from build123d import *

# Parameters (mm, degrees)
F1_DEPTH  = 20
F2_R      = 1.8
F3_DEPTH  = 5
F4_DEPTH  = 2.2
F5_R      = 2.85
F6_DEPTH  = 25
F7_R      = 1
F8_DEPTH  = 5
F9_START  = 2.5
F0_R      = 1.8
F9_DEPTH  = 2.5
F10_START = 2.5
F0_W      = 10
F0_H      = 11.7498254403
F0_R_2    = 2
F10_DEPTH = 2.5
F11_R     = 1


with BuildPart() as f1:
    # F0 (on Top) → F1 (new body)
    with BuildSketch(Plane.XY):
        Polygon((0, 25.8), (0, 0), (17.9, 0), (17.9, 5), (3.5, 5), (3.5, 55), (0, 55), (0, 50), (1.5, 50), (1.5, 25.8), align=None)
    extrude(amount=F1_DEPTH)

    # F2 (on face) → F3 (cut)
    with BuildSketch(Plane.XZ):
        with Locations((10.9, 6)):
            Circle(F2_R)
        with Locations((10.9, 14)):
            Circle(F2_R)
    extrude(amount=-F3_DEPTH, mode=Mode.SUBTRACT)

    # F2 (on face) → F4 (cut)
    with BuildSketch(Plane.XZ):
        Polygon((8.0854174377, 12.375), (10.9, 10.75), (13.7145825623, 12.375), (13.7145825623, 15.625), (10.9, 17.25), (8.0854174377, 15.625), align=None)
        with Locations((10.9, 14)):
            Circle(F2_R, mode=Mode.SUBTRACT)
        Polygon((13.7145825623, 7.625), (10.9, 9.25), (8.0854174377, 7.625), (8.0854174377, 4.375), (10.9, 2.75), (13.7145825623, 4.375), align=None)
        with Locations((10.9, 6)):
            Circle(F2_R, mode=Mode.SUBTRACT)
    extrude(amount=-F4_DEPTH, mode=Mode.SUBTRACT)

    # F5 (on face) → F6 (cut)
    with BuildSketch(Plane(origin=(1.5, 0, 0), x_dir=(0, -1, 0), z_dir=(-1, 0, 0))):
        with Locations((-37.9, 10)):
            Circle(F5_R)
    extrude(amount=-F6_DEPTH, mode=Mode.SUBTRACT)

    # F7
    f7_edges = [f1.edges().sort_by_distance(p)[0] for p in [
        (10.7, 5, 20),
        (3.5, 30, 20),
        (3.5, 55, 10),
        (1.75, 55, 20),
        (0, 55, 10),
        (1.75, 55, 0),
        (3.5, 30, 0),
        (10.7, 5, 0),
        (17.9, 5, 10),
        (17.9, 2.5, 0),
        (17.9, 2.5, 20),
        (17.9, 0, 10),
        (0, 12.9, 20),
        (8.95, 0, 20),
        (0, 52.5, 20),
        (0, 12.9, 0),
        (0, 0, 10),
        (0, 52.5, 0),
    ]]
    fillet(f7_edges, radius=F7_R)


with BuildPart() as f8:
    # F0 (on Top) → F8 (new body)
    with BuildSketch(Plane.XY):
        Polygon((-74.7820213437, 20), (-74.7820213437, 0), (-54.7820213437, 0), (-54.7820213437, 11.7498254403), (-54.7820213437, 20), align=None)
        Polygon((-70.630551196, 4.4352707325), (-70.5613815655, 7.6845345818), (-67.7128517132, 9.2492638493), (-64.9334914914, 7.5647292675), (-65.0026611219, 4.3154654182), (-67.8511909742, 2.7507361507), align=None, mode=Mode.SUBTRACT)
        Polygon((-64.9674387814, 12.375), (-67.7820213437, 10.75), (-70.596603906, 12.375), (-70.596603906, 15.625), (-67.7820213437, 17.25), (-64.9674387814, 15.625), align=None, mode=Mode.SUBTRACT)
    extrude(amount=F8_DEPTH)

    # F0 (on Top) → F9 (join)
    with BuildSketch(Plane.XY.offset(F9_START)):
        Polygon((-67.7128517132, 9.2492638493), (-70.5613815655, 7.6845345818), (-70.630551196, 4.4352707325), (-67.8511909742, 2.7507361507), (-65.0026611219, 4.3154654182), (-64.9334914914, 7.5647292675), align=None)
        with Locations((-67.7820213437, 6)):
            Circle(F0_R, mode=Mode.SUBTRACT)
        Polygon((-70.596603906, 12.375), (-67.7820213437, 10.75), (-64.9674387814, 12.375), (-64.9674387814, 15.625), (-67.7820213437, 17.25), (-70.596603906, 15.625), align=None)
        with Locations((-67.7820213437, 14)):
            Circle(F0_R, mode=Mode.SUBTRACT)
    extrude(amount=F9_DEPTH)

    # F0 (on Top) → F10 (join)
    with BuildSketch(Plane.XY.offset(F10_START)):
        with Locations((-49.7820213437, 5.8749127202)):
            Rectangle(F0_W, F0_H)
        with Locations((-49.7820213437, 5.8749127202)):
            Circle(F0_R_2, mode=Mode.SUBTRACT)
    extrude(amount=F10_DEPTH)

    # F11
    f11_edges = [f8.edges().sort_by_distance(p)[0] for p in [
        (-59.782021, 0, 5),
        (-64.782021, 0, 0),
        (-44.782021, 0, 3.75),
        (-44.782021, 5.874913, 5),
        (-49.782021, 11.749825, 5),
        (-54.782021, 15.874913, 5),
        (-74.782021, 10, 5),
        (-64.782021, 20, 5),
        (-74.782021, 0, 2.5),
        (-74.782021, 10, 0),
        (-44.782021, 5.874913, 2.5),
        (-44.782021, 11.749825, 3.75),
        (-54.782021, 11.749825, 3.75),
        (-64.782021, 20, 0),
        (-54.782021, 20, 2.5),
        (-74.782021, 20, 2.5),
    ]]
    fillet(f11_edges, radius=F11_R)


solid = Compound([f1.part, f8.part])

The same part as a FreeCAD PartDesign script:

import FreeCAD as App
import Part
import Sketcher
Q = App.Units.Quantity


def edges_at(feature, points):
    """Names of the edges that pass closest to the given points."""
    edges = feature.Shape.Edges
    near = lambda p: min(range(len(edges)), key=lambda i: edges[i].distToShape(Part.Vertex(*p))[0])
    return sorted({f"Edge{near(p) + 1}" for p in points})

doc = App.newDocument("Part")
body = doc.addObject("PartDesign::Body", "Body")

sketch1 = doc.addObject("Sketcher::SketchObject", "Sketch")
body.addObject(sketch1)
sketch1.AttachmentSupport = (doc.XY_Plane, [""])
sketch1.MapMode = "FlatFace"
sketch1.addGeometry([
    Part.LineSegment(App.Vector(0, 25.8, 0), App.Vector(0, 0, 0)),
    Part.LineSegment(App.Vector(0, 0, 0), App.Vector(17.9, 0, 0)),
    Part.LineSegment(App.Vector(17.9, 0, 0), App.Vector(17.9, 5, 0)),
    Part.LineSegment(App.Vector(17.9, 5, 0), App.Vector(3.5, 5, 0)),
    Part.LineSegment(App.Vector(3.5, 5, 0), App.Vector(3.5, 55, 0)),
    Part.LineSegment(App.Vector(3.5, 55, 0), App.Vector(0, 55, 0)),
    Part.LineSegment(App.Vector(0, 55, 0), App.Vector(0, 50, 0)),
    Part.LineSegment(App.Vector(0, 50, 0), App.Vector(1.5, 50, 0)),
    Part.LineSegment(App.Vector(1.5, 50, 0), App.Vector(1.5, 25.8, 0)),
    Part.LineSegment(App.Vector(1.5, 25.8, 0), App.Vector(0, 25.8, 0)),
], False)
sketch1.addConstraint([
    Sketcher.Constraint("Coincident", 0, 2, 1, 1),
    Sketcher.Constraint("Coincident", 1, 2, 2, 1),
    Sketcher.Constraint("Coincident", 2, 2, 3, 1),
    Sketcher.Constraint("Coincident", 3, 2, 4, 1),
    Sketcher.Constraint("Coincident", 4, 2, 5, 1),
    Sketcher.Constraint("Coincident", 5, 2, 6, 1),
    Sketcher.Constraint("Coincident", 6, 2, 7, 1),
    Sketcher.Constraint("Coincident", 7, 2, 8, 1),
    Sketcher.Constraint("Coincident", 8, 2, 9, 1),
    Sketcher.Constraint("Coincident", 9, 2, 0, 1),
    Sketcher.Constraint("Vertical", 0),
    Sketcher.Constraint("Horizontal", 1),
    Sketcher.Constraint("Vertical", 2),
    Sketcher.Constraint("Horizontal", 3),
    Sketcher.Constraint("Vertical", 4),
    Sketcher.Constraint("Horizontal", 5),
    Sketcher.Constraint("Vertical", 6),
    Sketcher.Constraint("Horizontal", 7),
    Sketcher.Constraint("Vertical", 8),
    Sketcher.Constraint("Horizontal", 9),
    Sketcher.Constraint("Coincident", 0, 2, -1, 1),
    Sketcher.Constraint("PointOnObject", 5, 2, -2),
    Sketcher.Constraint("Equal", 2, 6),
    Sketcher.Constraint("DistanceY", 2, 1, 2, 2, Q("5 mm")),
    Sketcher.Constraint("DistanceY", 4, 1, 4, 2, Q("50 mm")),
    Sketcher.Constraint("DistanceX", 1, 1, 1, 2, Q("17.9 mm")),
    Sketcher.Constraint("DistanceX", 3, 2, 3, 1, Q("14.4 mm")),
    Sketcher.Constraint("DistanceX", 7, 1, 7, 2, Q("1.5 mm")),
    Sketcher.Constraint("DistanceY", 0, 2, 0, 1, Q("25.8 mm")),
])
pad1 = doc.addObject("PartDesign::Pad", "Pad")
body.addObject(pad1)
pad1.Profile = sketch1
pad1.Length = 20

sketch2 = doc.addObject("Sketcher::SketchObject", "Sketch001")
body.addObject(sketch2)
sketch2.AttachmentSupport = (doc.XZ_Plane, [""])
sketch2.MapMode = "FlatFace"
sketch2.addGeometry([
    Part.Circle(App.Vector(10.9, 6, 0), App.Vector(0, 0, 1), 1.8),
    Part.Circle(App.Vector(10.9, 14, 0), App.Vector(0, 0, 1), 1.8),
], False)
sketch2.addConstraint([
    Sketcher.Constraint("Equal", 0, 1),
    Sketcher.Constraint("Vertical", 0, 3, 1, 3),
    Sketcher.Constraint("Diameter", 0, Q("3.6 mm")),
    Sketcher.Constraint("DistanceY", -1, 1, 0, 3, Q("6 mm")),
    Sketcher.Constraint("DistanceY", -1, 1, 1, 3, Q("14 mm")),
    Sketcher.Constraint("DistanceX", -1, 1, 0, 3, Q("10.9 mm")),
])
pocket1 = doc.addObject("PartDesign::Pocket", "Pocket")
body.addObject(pocket1)
pocket1.Profile = sketch2
pocket1.Length = 5

sketch3 = doc.addObject("Sketcher::SketchObject", "Sketch002")
body.addObject(sketch3)
sketch3.AttachmentSupport = (doc.XZ_Plane, [""])
sketch3.MapMode = "FlatFace"
sketch3.addGeometry([
    Part.LineSegment(App.Vector(8.1, 12.4, 0), App.Vector(10.9, 10.8, 0)),
    Part.LineSegment(App.Vector(10.9, 10.8, 0), App.Vector(13.7, 12.4, 0)),
    Part.LineSegment(App.Vector(13.7, 12.4, 0), App.Vector(13.7, 15.6, 0)),
    Part.LineSegment(App.Vector(13.7, 15.6, 0), App.Vector(10.9, 17.2, 0)),
    Part.LineSegment(App.Vector(10.9, 17.2, 0), App.Vector(8.1, 15.6, 0)),
    Part.LineSegment(App.Vector(8.1, 15.6, 0), App.Vector(8.1, 12.4, 0)),
    Part.Circle(App.Vector(10.9, 14, 0), App.Vector(0, 0, 1), 1.8),
    Part.LineSegment(App.Vector(13.7, 7.6, 0), App.Vector(10.9, 9.2, 0)),
    Part.LineSegment(App.Vector(10.9, 9.2, 0), App.Vector(8.1, 7.6, 0)),
    Part.LineSegment(App.Vector(8.1, 7.6, 0), App.Vector(8.1, 4.4, 0)),
    Part.LineSegment(App.Vector(8.1, 4.4, 0), App.Vector(10.9, 2.8, 0)),
    Part.LineSegment(App.Vector(10.9, 2.8, 0), App.Vector(13.7, 4.4, 0)),
    Part.LineSegment(App.Vector(13.7, 4.4, 0), App.Vector(13.7, 7.6, 0)),
    Part.Circle(App.Vector(10.9, 6, 0), App.Vector(0, 0, 1), 1.8),
], False)
sketch3.addConstraint([
    Sketcher.Constraint("Coincident", 0, 2, 1, 1),
    Sketcher.Constraint("Coincident", 1, 2, 2, 1),
    Sketcher.Constraint("Coincident", 2, 2, 3, 1),
    Sketcher.Constraint("Coincident", 3, 2, 4, 1),
    Sketcher.Constraint("Coincident", 4, 2, 5, 1),
    Sketcher.Constraint("Coincident", 5, 2, 0, 1),
    Sketcher.Constraint("Coincident", 7, 2, 8, 1),
    Sketcher.Constraint("Coincident", 8, 2, 9, 1),
    Sketcher.Constraint("Coincident", 9, 2, 10, 1),
    Sketcher.Constraint("Coincident", 10, 2, 11, 1),
    Sketcher.Constraint("Coincident", 11, 2, 12, 1),
    Sketcher.Constraint("Coincident", 12, 2, 7, 1),
    Sketcher.Constraint("Vertical", 2),
    Sketcher.Constraint("Vertical", 5),
    Sketcher.Constraint("Vertical", 9),
    Sketcher.Constraint("Vertical", 12),
    Sketcher.Constraint("Equal", 6, 13),
    Sketcher.Constraint("Parallel", 0, 3),
    Sketcher.Constraint("Parallel", 1, 4),
    Sketcher.Constraint("Parallel", 3, 7),
    Sketcher.Constraint("Parallel", 4, 8),
    Sketcher.Constraint("Parallel", 7, 10),
    Sketcher.Constraint("Parallel", 8, 11),
    Sketcher.Constraint("Horizontal", 2, 2, 4, 2),
    Sketcher.Constraint("Horizontal", 1, 2, 5, 2),
    Sketcher.Constraint("Horizontal", 9, 2, 11, 2),
    Sketcher.Constraint("Horizontal", 8, 2, 12, 2),
    Sketcher.Constraint("Vertical", 6, 3, 13, 3),
    Sketcher.Constraint("Vertical", 13, 3, 0, 2),
    Sketcher.Constraint("Vertical", 0, 2, 3, 2),
    Sketcher.Constraint("Vertical", 3, 2, 7, 2),
    Sketcher.Constraint("Vertical", 5, 2, 8, 2),
    Sketcher.Constraint("Equal", 5, 9),
    Sketcher.Constraint("Diameter", 6, Q("3.6 mm")),
    Sketcher.Constraint("Angle", 0, Q("-30 deg")),
    Sketcher.Constraint("DistanceY", -1, 1, 6, 3, Q("14 mm")),
    Sketcher.Constraint("DistanceY", -1, 1, 13, 3, Q("6 mm")),
    Sketcher.Constraint("DistanceY", 9, 2, 5, 2, Q("8 mm")),
    Sketcher.Constraint("DistanceY", 2, 1, 2, 2, Q("3.25 mm")),
    Sketcher.Constraint("DistanceX", -1, 1, 6, 3, Q("10.9 mm")),
    Sketcher.Constraint("DistanceY", 0, 2, 3, 2, Q("6.5 mm")),
    Sketcher.Constraint("DistanceY", -1, 1, 0, 2, Q("10.75 mm")),
])
pocket2 = doc.addObject("PartDesign::Pocket", "Pocket001")
body.addObject(pocket2)
pocket2.Profile = sketch3
pocket2.Length = 2.2

sketch4 = doc.addObject("Sketcher::SketchObject", "Sketch003")
body.addObject(sketch4)
sketch4.AttachmentSupport = (doc.YZ_Plane, [""])
sketch4.MapMode = "FlatFace"
sketch4.AttachmentOffset = App.Placement(App.Vector(0, 0, 1.5), App.Rotation())
sketch4.addGeometry(Part.Circle(App.Vector(37.9, 10, 0), App.Vector(0, 0, 1), 2.9), False)
sketch4.addConstraint([
    Sketcher.Constraint("Diameter", 0, Q("5.7 mm")),
    Sketcher.Constraint("DistanceY", -1, 1, 0, 3, Q("10 mm")),
    Sketcher.Constraint("DistanceX", -1, 1, 0, 3, Q("37.9 mm")),
])
pocket3 = doc.addObject("PartDesign::Pocket", "Pocket002")
body.addObject(pocket3)
pocket3.Profile = sketch4
pocket3.Length = 25
pocket3.Reversed = True
doc.recompute()

fillet = doc.addObject("PartDesign::Fillet", "Fillet")
body.addObject(fillet)
fillet.Base = (pocket3, edges_at(pocket3, [
    (10.7, 5, 20),
    (3.5, 30, 20),
    (3.5, 55, 10),
    (1.75, 55, 20),
    (0, 55, 10),
    (1.75, 55, 0),
    (3.5, 30, 0),
    (10.7, 5, 0),
    (17.9, 5, 10),
    (17.9, 2.5, 0),
    (17.9, 2.5, 20),
    (17.9, 0, 10),
    (0, 12.9, 20),
    (8.95, 0, 20),
    (0, 52.5, 20),
    (0, 12.9, 0),
    (0, 0, 10),
    (0, 52.5, 0),
]))
fillet.Radius = 1
body2 = doc.addObject("PartDesign::Body", "Body001")

sketch5 = doc.addObject("Sketcher::SketchObject", "Sketch004")
body2.addObject(sketch5)
sketch5.AttachmentSupport = (doc.getObject("XY_Plane001"), [""])
sketch5.MapMode = "FlatFace"
sketch5.addGeometry([
    Part.LineSegment(App.Vector(-74.8, 20, 0), App.Vector(-74.8, 0, 0)),
    Part.LineSegment(App.Vector(-74.8, 0, 0), App.Vector(-54.8, 0, 0)),
    Part.LineSegment(App.Vector(-54.8, 0, 0), App.Vector(-54.8, 20, 0)),
    Part.LineSegment(App.Vector(-54.8, 20, 0), App.Vector(-74.8, 20, 0)),
    Part.LineSegment(App.Vector(-67.9, 2.8, 0), App.Vector(-70.6, 4.4, 0)),
    Part.LineSegment(App.Vector(-70.6, 4.4, 0), App.Vector(-70.6, 7.7, 0)),
    Part.LineSegment(App.Vector(-70.6, 7.7, 0), App.Vector(-67.7, 9.2, 0)),
    Part.LineSegment(App.Vector(-67.7, 9.2, 0), App.Vector(-64.9, 7.6, 0)),
    Part.LineSegment(App.Vector(-64.9, 7.6, 0), App.Vector(-65, 4.3, 0)),
    Part.LineSegment(App.Vector(-65, 4.3, 0), App.Vector(-67.9, 2.8, 0)),
    Part.LineSegment(App.Vector(-65, 15.6, 0), App.Vector(-65, 12.4, 0)),
    Part.LineSegment(App.Vector(-65, 12.4, 0), App.Vector(-67.8, 10.8, 0)),
    Part.LineSegment(App.Vector(-67.8, 10.8, 0), App.Vector(-70.6, 12.4, 0)),
    Part.LineSegment(App.Vector(-70.6, 12.4, 0), App.Vector(-70.6, 15.6, 0)),
    Part.LineSegment(App.Vector(-70.6, 15.6, 0), App.Vector(-67.8, 17.2, 0)),
    Part.LineSegment(App.Vector(-67.8, 17.2, 0), App.Vector(-65, 15.6, 0)),
], False)
sketch5.addConstraint([
    Sketcher.Constraint("Coincident", 0, 2, 1, 1),
    Sketcher.Constraint("Coincident", 1, 2, 2, 1),
    Sketcher.Constraint("Coincident", 2, 2, 3, 1),
    Sketcher.Constraint("Coincident", 3, 2, 0, 1),
    Sketcher.Constraint("Coincident", 4, 2, 5, 1),
    Sketcher.Constraint("Coincident", 5, 2, 6, 1),
    Sketcher.Constraint("Coincident", 6, 2, 7, 1),
    Sketcher.Constraint("Coincident", 7, 2, 8, 1),
    Sketcher.Constraint("Coincident", 8, 2, 9, 1),
    Sketcher.Constraint("Coincident", 9, 2, 4, 1),
    Sketcher.Constraint("Coincident", 10, 2, 11, 1),
    Sketcher.Constraint("Coincident", 11, 2, 12, 1),
    Sketcher.Constraint("Coincident", 12, 2, 13, 1),
    Sketcher.Constraint("Coincident", 13, 2, 14, 1),
    Sketcher.Constraint("Coincident", 14, 2, 15, 1),
    Sketcher.Constraint("Coincident", 15, 2, 10, 1),
    Sketcher.Constraint("Vertical", 0),
    Sketcher.Constraint("Horizontal", 1),
    Sketcher.Constraint("Vertical", 2),
    Sketcher.Constraint("Horizontal", 3),
    Sketcher.Constraint("Vertical", 10),
    Sketcher.Constraint("Vertical", 13),
    Sketcher.Constraint("PointOnObject", 0, 2, -1),
    Sketcher.Constraint("Parallel", 4, 7),
    Sketcher.Constraint("Parallel", 5, 8),
    Sketcher.Constraint("Parallel", 6, 9),
    Sketcher.Constraint("Parallel", 11, 14),
    Sketcher.Constraint("Parallel", 12, 15),
    Sketcher.Constraint("Horizontal", 10, 2, 12, 2),
    Sketcher.Constraint("Horizontal", 13, 2, 15, 2),
    Sketcher.Constraint("Vertical", 11, 2, 14, 2),
    Sketcher.Constraint("Equal", 3, 0),
    Sketcher.Constraint("Equal", 4, 5),
    Sketcher.Constraint("Equal", 5, 6),
    Sketcher.Constraint("Equal", 6, 7),
    Sketcher.Constraint("Equal", 9, 11),
    Sketcher.Constraint("DistanceX", 1, 1, 1, 2, Q("20 mm")),
    Sketcher.Constraint("Angle", 11, Q("-150 deg")),
    Sketcher.Constraint("DistanceX", 3, 2, 14, 2, Q("7 mm")),
    Sketcher.Constraint("DistanceY", 10, 2, 10, 1, Q("3.25 mm")),
    Sketcher.Constraint("DistanceY", 11, 2, 14, 2, Q("6.5 mm")),
    Sketcher.Constraint("DistanceY", -1, 1, 11, 2, Q("10.75 mm")),
    Sketcher.Constraint("DistanceX", 4, 2, 6, 2, Q("2.917699 mm")),
    Sketcher.Constraint("DistanceY", 8, 2, 6, 2, Q("4.933798 mm")),
    Sketcher.Constraint("DistanceX", 0, 2, -1, 1, Q("74.782021 mm")),
    Sketcher.Constraint("DistanceX", 4, 2, -1, 1, Q("70.630551 mm")),
    Sketcher.Constraint("DistanceY", -1, 1, 4, 2, Q("4.435271 mm")),
    Sketcher.Constraint("DistanceX", 5, 2, -1, 1, Q("70.561382 mm")),
])
pad2 = doc.addObject("PartDesign::Pad", "Pad001")
body2.addObject(pad2)
pad2.Profile = sketch5
pad2.Length = 5

sketch6 = doc.addObject("Sketcher::SketchObject", "Sketch005")
body2.addObject(sketch6)
sketch6.AttachmentSupport = (doc.getObject("XY_Plane001"), [""])
sketch6.MapMode = "FlatFace"
sketch6.AttachmentOffset = App.Placement(App.Vector(0, 0, 2.5), App.Rotation())
sketch6.addGeometry([
    Part.LineSegment(App.Vector(-67.7, 9.2, 0), App.Vector(-70.6, 7.7, 0)),
    Part.LineSegment(App.Vector(-70.6, 7.7, 0), App.Vector(-70.6, 4.4, 0)),
    Part.LineSegment(App.Vector(-70.6, 4.4, 0), App.Vector(-67.9, 2.8, 0)),
    Part.LineSegment(App.Vector(-67.9, 2.8, 0), App.Vector(-65, 4.3, 0)),
    Part.LineSegment(App.Vector(-65, 4.3, 0), App.Vector(-64.9, 7.6, 0)),
    Part.LineSegment(App.Vector(-64.9, 7.6, 0), App.Vector(-67.7, 9.2, 0)),
    Part.Circle(App.Vector(-67.8, 6, 0), App.Vector(0, 0, 1), 1.8),
    Part.LineSegment(App.Vector(-70.6, 12.4, 0), App.Vector(-67.8, 10.8, 0)),
    Part.LineSegment(App.Vector(-67.8, 10.8, 0), App.Vector(-65, 12.4, 0)),
    Part.LineSegment(App.Vector(-65, 12.4, 0), App.Vector(-65, 15.6, 0)),
    Part.LineSegment(App.Vector(-65, 15.6, 0), App.Vector(-67.8, 17.2, 0)),
    Part.LineSegment(App.Vector(-67.8, 17.2, 0), App.Vector(-70.6, 15.6, 0)),
    Part.LineSegment(App.Vector(-70.6, 15.6, 0), App.Vector(-70.6, 12.4, 0)),
    Part.Circle(App.Vector(-67.8, 14, 0), App.Vector(0, 0, 1), 1.8),
], False)
sketch6.addConstraint([
    Sketcher.Constraint("Coincident", 0, 2, 1, 1),
    Sketcher.Constraint("Coincident", 1, 2, 2, 1),
    Sketcher.Constraint("Coincident", 2, 2, 3, 1),
    Sketcher.Constraint("Coincident", 3, 2, 4, 1),
    Sketcher.Constraint("Coincident", 4, 2, 5, 1),
    Sketcher.Constraint("Coincident", 5, 2, 0, 1),
    Sketcher.Constraint("Coincident", 7, 2, 8, 1),
    Sketcher.Constraint("Coincident", 8, 2, 9, 1),
    Sketcher.Constraint("Coincident", 9, 2, 10, 1),
    Sketcher.Constraint("Coincident", 10, 2, 11, 1),
    Sketcher.Constraint("Coincident", 11, 2, 12, 1),
    Sketcher.Constraint("Coincident", 12, 2, 7, 1),
    Sketcher.Constraint("Vertical", 9),
    Sketcher.Constraint("Vertical", 12),
    Sketcher.Constraint("Equal", 6, 13),
    Sketcher.Constraint("Parallel", 0, 3),
    Sketcher.Constraint("Parallel", 1, 4),
    Sketcher.Constraint("Parallel", 2, 5),
    Sketcher.Constraint("Parallel", 7, 10),
    Sketcher.Constraint("Parallel", 8, 11),
    Sketcher.Constraint("Horizontal", 9, 2, 11, 2),
    Sketcher.Constraint("Horizontal", 8, 2, 12, 2),
    Sketcher.Constraint("Vertical", 6, 3, 13, 3),
    Sketcher.Constraint("Vertical", 13, 3, 7, 2),
    Sketcher.Constraint("Vertical", 7, 2, 10, 2),
    Sketcher.Constraint("Equal", 0, 1),
    Sketcher.Constraint("Equal", 1, 2),
    Sketcher.Constraint("Equal", 2, 3),
    Sketcher.Constraint("Equal", 5, 7),
    Sketcher.Constraint("Diameter", 6, Q("3.6 mm")),
    Sketcher.Constraint("Angle", 7, Q("-30 deg")),
    Sketcher.Constraint("DistanceY", -1, 1, 6, 3, Q("6 mm")),
    Sketcher.Constraint("DistanceY", -1, 1, 13, 3, Q("14 mm")),
    Sketcher.Constraint("DistanceY", 9, 1, 9, 2, Q("3.25 mm")),
    Sketcher.Constraint("DistanceY", 7, 2, 10, 2, Q("6.5 mm")),
    Sketcher.Constraint("DistanceY", -1, 1, 7, 2, Q("10.75 mm")),
    Sketcher.Constraint("DistanceY", 2, 2, 0, 2, Q("4.933798 mm")),
    Sketcher.Constraint("DistanceX", 2, 2, 4, 2, Q("2.917699 mm")),
    Sketcher.Constraint("DistanceX", 6, 3, -1, 1, Q("67.782021 mm")),
    Sketcher.Constraint("DistanceX", 0, 2, -1, 1, Q("70.561382 mm")),
    Sketcher.Constraint("DistanceX", 1, 2, -1, 1, Q("70.630551 mm")),
    Sketcher.Constraint("DistanceY", -1, 1, 1, 2, Q("4.435271 mm")),
])
pad3 = doc.addObject("PartDesign::Pad", "Pad002")
body2.addObject(pad3)
pad3.Profile = sketch6
pad3.Length = 2.5

sketch7 = doc.addObject("Sketcher::SketchObject", "Sketch006")
body2.addObject(sketch7)
sketch7.AttachmentSupport = (doc.getObject("XY_Plane001"), [""])
sketch7.MapMode = "FlatFace"
sketch7.AttachmentOffset = App.Placement(App.Vector(0, 0, 2.5), App.Rotation())
sketch7.addGeometry([
    Part.LineSegment(App.Vector(-54.8, 11.7, 0), App.Vector(-54.8, 0, 0)),
    Part.LineSegment(App.Vector(-54.8, 0, 0), App.Vector(-44.8, 0, 0)),
    Part.LineSegment(App.Vector(-44.8, 0, 0), App.Vector(-44.8, 11.7, 0)),
    Part.LineSegment(App.Vector(-44.8, 11.7, 0), App.Vector(-54.8, 11.7, 0)),
    Part.Circle(App.Vector(-49.8, 5.9, 0), App.Vector(0, 0, 1), 2),
], False)
sketch7.addConstraint([
    Sketcher.Constraint("Coincident", 0, 2, 1, 1),
    Sketcher.Constraint("Coincident", 1, 2, 2, 1),
    Sketcher.Constraint("Coincident", 2, 2, 3, 1),
    Sketcher.Constraint("Coincident", 3, 2, 0, 1),
    Sketcher.Constraint("Vertical", 0),
    Sketcher.Constraint("Horizontal", 1),
    Sketcher.Constraint("Vertical", 2),
    Sketcher.Constraint("Horizontal", 3),
    Sketcher.Constraint("PointOnObject", 0, 2, -1),
    Sketcher.Constraint("Diameter", 4, Q("4 mm")),
    Sketcher.Constraint("DistanceX", 1, 1, 1, 2, Q("10 mm")),
    Sketcher.Constraint("DistanceX", 0, 2, 4, 3, Q("5 mm")),
    Sketcher.Constraint("DistanceY", 0, 2, 0, 1, Q("11.749825 mm")),
    Sketcher.Constraint("DistanceX", 4, 3, -1, 1, Q("49.782021 mm")),
    Sketcher.Constraint("DistanceY", -1, 1, 4, 3, Q("5.874913 mm")),
])
pad4 = doc.addObject("PartDesign::Pad", "Pad003")
body2.addObject(pad4)
pad4.Profile = sketch7
pad4.Length = 2.5
doc.recompute()

fillet2 = doc.addObject("PartDesign::Fillet", "Fillet001")
body2.addObject(fillet2)
fillet2.Base = (pad4, edges_at(pad4, [
    (-64.782, 0, 5),
    (-64.782, 0, 0),
    (-44.782, 0, 3.75),
    (-44.782, 5.875, 5),
    (-49.782, 11.75, 5),
    (-54.782, 15.875, 5),
    (-74.782, 10, 5),
    (-64.782, 20, 5),
    (-74.782, 0, 2.5),
    (-74.782, 10, 0),
    (-44.782, 5.875, 2.5),
    (-44.782, 11.75, 3.75),
    (-54.782, 11.75, 3.75),
    (-64.782, 20, 0),
    (-54.782, 20, 2.5),
    (-74.782, 20, 2.5),
]))
fillet2.Radius = 1

doc.recompute()
